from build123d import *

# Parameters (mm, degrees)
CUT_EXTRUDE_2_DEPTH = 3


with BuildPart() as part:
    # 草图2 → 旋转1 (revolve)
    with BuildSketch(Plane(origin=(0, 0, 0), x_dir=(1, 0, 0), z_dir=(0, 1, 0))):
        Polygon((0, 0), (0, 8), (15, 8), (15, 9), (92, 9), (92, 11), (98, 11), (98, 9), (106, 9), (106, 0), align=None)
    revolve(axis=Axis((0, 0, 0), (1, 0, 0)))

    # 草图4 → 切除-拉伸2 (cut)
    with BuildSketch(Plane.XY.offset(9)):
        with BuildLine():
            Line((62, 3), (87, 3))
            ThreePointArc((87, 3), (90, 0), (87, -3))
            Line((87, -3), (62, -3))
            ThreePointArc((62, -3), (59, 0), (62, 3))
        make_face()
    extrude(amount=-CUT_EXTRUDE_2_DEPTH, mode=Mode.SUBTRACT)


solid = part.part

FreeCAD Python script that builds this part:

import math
import FreeCAD as App
import Part
import Sketcher

V = App.Vector

doc = App.newDocument("Part")
body = doc.addObject("PartDesign::Body", "Body")

sketch1 = body.newObject("Sketcher::SketchObject", "Sketch")
sketch1.AttachmentSupport = (doc.getObject("XZ_Plane"), [""])
sketch1.MapMode = "FlatFace"
sketch1.addGeometry([
    Part.LineSegment(V(0, -8, 0), V(0, 0, 0)),
    Part.LineSegment(V(0, 0, 0), V(106, 0, 0)),
    Part.LineSegment(V(106, 0, 0), V(106, -9, 0)),
    Part.LineSegment(V(106, -9, 0), V(98, -9, 0)),
    Part.LineSegment(V(98, -9, 0), V(98, -11, 0)),
    Part.LineSegment(V(98, -11, 0), V(92, -11, 0)),
    Part.LineSegment(V(92, -11, 0), V(92, -9, 0)),
    Part.LineSegment(V(92, -9, 0), V(15, -9, 0)),
    Part.LineSegment(V(15, -9, 0), V(15, -8, 0)),
    Part.LineSegment(V(15, -8, 0), V(0, -8, 0)),
], False)
sketch1.addConstraint([
    Sketcher.Constraint("Coincident", 0, 2, 1, 1),
    Sketcher.Constraint("Coincident", 1, 2, 2, 1),
    Sketcher.Constraint("Coincident", 2, 2, 3, 1),
    Sketcher.Constraint("Coincident", 3, 2, 4, 1),
    Sketcher.Constraint("Coincident", 4, 2, 5, 1),
    Sketcher.Constraint("Coincident", 5, 2, 6, 1),
    Sketcher.Constraint("Coincident", 6, 2, 7, 1),
    Sketcher.Constraint("Coincident", 7, 2, 8, 1),
    Sketcher.Constraint("Coincident", 8, 2, 9, 1),
    Sketcher.Constraint("Coincident", 9, 2, 0, 1),
    Sketcher.Constraint("Vertical", 0),
    Sketcher.Constraint("Horizontal", 1),
    Sketcher.Constraint("Vertical", 2),
    Sketcher.Constraint("Horizontal", 3),
    Sketcher.Constraint("Vertical", 4),
    Sketcher.Constraint("Horizontal", 5),
    Sketcher.Constraint("Vertical", 6),
    Sketcher.Constraint("Horizontal", 7),
    Sketcher.Constraint("Vertical", 8),
    Sketcher.Constraint("Horizontal", 9),
    Sketcher.Constraint("Coincident", 0, 2, -1, 1),
    Sketcher.Constraint("Horizontal", 3, 2, 6, 2),
    Sketcher.Constraint("Equal", 3, 0),
    Sketcher.Constraint("DistanceX", 1, 1, 1, 2, 106.0),
    Sketcher.Constraint("DistanceX", 3, 2, 3, 1, 8.0),
    Sketcher.Constraint("DistanceX", 5, 2, 5, 1, 6.0),
    Sketcher.Constraint("DistanceX", 7, 2, 7, 1, 77.0),
    Sketcher.Constraint("DistanceY", 2, 2, 2, 1, 9.0),
    Sketcher.Constraint("DistanceY", 4, 2, 4, 1, 2.0),
])
revolution = body.newObject("PartDesign::Revolution", "Revolution")
revolution.Profile = sketch1
revolution.ReferenceAxis = (sketch1, ["H_Axis"])
revolution.Angle = 360

sketch2 = body.newObject("Sketcher::SketchObject", "Sketch001")
sketch2.AttachmentSupport = (doc.getObject("XY_Plane"), [""])
sketch2.MapMode = "FlatFace"
sketch2.AttachmentOffset = App.Placement(V(0, 0, 9), App.Rotation())
sketch2.addGeometry([
    Part.LineSegment(V(87, 3, 0), V(62, 3, 0)),
    Part.ArcOfCircle(Part.Circle(V(62, 0, 0), V(0, 0, 1), 3), math.radians(90), math.radians(270)),
    Part.LineSegment(V(62, -3, 0), V(87, -3, 0)),
    Part.ArcOfCircle(Part.Circle(V(87, 0, 0), V(0, 0, 1), 3), math.radians(-90), math.radians(90)),
], False)
sketch2.addConstraint([
    Sketcher.Constraint("Tangent", 0, 2, 1, 1),
    Sketcher.Constraint("Tangent", 1, 2, 2, 1),
    Sketcher.Constraint("Tangent", 2, 2, 3, 1),
    Sketcher.Constraint("Tangent", 3, 2, 0, 1),
    Sketcher.Constraint("Horizontal", 0),
    Sketcher.Constraint("Horizontal", 2),
    Sketcher.Constraint("PointOnObject", 1, 3, -1),
    Sketcher.Constraint("Radius", 1, 3.0),
    Sketcher.Constraint("DistanceX", 0, 2, 0, 1, 25.0),
    Sketcher.Constraint("DistanceX", -1, 1, 1, 3, 62.0),
])
pocket1 = body.newObject("PartDesign::Pocket", "Pocket")
pocket1.Profile = sketch2
pocket1.Length = 3

doc.recompute()
